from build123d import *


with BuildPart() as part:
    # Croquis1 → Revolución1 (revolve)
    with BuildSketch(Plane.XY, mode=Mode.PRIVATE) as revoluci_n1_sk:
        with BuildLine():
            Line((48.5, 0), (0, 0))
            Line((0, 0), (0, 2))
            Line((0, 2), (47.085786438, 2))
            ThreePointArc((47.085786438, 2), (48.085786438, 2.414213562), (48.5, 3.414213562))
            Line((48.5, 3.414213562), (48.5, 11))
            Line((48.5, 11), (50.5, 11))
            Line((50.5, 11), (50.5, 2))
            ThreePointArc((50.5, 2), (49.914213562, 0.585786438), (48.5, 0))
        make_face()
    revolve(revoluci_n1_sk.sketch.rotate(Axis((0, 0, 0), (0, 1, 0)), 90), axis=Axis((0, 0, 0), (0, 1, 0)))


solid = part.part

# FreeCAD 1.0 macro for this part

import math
import FreeCAD as App
import Part
import Sketcher
from FreeCAD import Vector
Q = App.Units.Quantity

doc = App.newDocument("Part")
body = doc.addObject("PartDesign::Body", "Body")

# Sketch on XY plane
sketch1 = doc.addObject("Sketcher::SketchObject", "Sketch")
body.addObject(sketch1)
sketch1.AttachmentSupport = (doc.XY_Plane, [""])
sketch1.MapMode = "FlatFace"
sketch1.addGeometry([
    Part.LineSegment(Vector(0, 0, 0), Vector(48.5, 0, 0)),  # 0
    Part.ArcOfCircle(Part.Circle(Vector(48.5, 2, 0), Vector(0, 0, 1), 2), math.radians(-90), math.radians(0)),  # 1
    Part.LineSegment(Vector(50.5, 2, 0), Vector(50.5, 11, 0)),  # 2
    Part.LineSegment(Vector(50.5, 11, 0), Vector(48.5, 11, 0)),  # 3
    Part.LineSegment(Vector(48.5, 11, 0), Vector(48.5, 3.4, 0)),  # 4
    Part.ArcOfCircle(Part.Circle(Vector(47.1, 3.4, 0), Vector(0, 0, 1), 1.4), math.radians(-90), math.radians(0)),  # 5
    Part.LineSegment(Vector(47.1, 2, 0), Vector(0, 2, 0)),  # 6
    Part.LineSegment(Vector(0, 2, 0), Vector(0, 0, 0)),  # 7
], False)
sketch1.addConstraint([
    Sketcher.Constraint("Tangent", 0, 2, 1, 1),
    Sketcher.Constraint("Tangent", 1, 2, 2, 1),
    Sketcher.Constraint("Coincident", 2, 2, 3, 1),
    Sketcher.Constraint("Coincident", 3, 2, 4, 1),
    Sketcher.Constraint("Tangent", 4, 2, 5, 2),
    Sketcher.Constraint("Tangent", 5, 1, 6, 1),
    Sketcher.Constraint("Coincident", 6, 2, 7, 1),
    Sketcher.Constraint("Coincident", 7, 2, 0, 1),
    Sketcher.Constraint("Horizontal", 0),
    Sketcher.Constraint("Vertical", 2),
    Sketcher.Constraint("Horizontal", 3),
    Sketcher.Constraint("Vertical", 4),
    Sketcher.Constraint("Horizontal", 6),
    Sketcher.Constraint("Vertical", 7),
    Sketcher.Constraint("Coincident", 7, 2, -1, 1),
    Sketcher.Constraint("Horizontal", 1, 2, 5, 1),
    Sketcher.Constraint("Vertical", 0, 2, 3, 2),
    Sketcher.Constraint("Radius", 1, Q("2 mm")),
    Sketcher.Constraint("DistanceY", 2, 1, 2, 2, Q("9 mm")),
    Sketcher.Constraint("DistanceX", 0, 1, 0, 2, Q("48.5 mm")),
    Sketcher.Constraint("Radius", 5, Q("1.414214 mm")),
])
revolution = doc.addObject("PartDesign::Revolution", "Revolution")
body.addObject(revolution)
revolution.Profile = sketch1
revolution.ReferenceAxis = (sketch1, ["V_Axis"])
revolution.Angle = 360

doc.recompute()
